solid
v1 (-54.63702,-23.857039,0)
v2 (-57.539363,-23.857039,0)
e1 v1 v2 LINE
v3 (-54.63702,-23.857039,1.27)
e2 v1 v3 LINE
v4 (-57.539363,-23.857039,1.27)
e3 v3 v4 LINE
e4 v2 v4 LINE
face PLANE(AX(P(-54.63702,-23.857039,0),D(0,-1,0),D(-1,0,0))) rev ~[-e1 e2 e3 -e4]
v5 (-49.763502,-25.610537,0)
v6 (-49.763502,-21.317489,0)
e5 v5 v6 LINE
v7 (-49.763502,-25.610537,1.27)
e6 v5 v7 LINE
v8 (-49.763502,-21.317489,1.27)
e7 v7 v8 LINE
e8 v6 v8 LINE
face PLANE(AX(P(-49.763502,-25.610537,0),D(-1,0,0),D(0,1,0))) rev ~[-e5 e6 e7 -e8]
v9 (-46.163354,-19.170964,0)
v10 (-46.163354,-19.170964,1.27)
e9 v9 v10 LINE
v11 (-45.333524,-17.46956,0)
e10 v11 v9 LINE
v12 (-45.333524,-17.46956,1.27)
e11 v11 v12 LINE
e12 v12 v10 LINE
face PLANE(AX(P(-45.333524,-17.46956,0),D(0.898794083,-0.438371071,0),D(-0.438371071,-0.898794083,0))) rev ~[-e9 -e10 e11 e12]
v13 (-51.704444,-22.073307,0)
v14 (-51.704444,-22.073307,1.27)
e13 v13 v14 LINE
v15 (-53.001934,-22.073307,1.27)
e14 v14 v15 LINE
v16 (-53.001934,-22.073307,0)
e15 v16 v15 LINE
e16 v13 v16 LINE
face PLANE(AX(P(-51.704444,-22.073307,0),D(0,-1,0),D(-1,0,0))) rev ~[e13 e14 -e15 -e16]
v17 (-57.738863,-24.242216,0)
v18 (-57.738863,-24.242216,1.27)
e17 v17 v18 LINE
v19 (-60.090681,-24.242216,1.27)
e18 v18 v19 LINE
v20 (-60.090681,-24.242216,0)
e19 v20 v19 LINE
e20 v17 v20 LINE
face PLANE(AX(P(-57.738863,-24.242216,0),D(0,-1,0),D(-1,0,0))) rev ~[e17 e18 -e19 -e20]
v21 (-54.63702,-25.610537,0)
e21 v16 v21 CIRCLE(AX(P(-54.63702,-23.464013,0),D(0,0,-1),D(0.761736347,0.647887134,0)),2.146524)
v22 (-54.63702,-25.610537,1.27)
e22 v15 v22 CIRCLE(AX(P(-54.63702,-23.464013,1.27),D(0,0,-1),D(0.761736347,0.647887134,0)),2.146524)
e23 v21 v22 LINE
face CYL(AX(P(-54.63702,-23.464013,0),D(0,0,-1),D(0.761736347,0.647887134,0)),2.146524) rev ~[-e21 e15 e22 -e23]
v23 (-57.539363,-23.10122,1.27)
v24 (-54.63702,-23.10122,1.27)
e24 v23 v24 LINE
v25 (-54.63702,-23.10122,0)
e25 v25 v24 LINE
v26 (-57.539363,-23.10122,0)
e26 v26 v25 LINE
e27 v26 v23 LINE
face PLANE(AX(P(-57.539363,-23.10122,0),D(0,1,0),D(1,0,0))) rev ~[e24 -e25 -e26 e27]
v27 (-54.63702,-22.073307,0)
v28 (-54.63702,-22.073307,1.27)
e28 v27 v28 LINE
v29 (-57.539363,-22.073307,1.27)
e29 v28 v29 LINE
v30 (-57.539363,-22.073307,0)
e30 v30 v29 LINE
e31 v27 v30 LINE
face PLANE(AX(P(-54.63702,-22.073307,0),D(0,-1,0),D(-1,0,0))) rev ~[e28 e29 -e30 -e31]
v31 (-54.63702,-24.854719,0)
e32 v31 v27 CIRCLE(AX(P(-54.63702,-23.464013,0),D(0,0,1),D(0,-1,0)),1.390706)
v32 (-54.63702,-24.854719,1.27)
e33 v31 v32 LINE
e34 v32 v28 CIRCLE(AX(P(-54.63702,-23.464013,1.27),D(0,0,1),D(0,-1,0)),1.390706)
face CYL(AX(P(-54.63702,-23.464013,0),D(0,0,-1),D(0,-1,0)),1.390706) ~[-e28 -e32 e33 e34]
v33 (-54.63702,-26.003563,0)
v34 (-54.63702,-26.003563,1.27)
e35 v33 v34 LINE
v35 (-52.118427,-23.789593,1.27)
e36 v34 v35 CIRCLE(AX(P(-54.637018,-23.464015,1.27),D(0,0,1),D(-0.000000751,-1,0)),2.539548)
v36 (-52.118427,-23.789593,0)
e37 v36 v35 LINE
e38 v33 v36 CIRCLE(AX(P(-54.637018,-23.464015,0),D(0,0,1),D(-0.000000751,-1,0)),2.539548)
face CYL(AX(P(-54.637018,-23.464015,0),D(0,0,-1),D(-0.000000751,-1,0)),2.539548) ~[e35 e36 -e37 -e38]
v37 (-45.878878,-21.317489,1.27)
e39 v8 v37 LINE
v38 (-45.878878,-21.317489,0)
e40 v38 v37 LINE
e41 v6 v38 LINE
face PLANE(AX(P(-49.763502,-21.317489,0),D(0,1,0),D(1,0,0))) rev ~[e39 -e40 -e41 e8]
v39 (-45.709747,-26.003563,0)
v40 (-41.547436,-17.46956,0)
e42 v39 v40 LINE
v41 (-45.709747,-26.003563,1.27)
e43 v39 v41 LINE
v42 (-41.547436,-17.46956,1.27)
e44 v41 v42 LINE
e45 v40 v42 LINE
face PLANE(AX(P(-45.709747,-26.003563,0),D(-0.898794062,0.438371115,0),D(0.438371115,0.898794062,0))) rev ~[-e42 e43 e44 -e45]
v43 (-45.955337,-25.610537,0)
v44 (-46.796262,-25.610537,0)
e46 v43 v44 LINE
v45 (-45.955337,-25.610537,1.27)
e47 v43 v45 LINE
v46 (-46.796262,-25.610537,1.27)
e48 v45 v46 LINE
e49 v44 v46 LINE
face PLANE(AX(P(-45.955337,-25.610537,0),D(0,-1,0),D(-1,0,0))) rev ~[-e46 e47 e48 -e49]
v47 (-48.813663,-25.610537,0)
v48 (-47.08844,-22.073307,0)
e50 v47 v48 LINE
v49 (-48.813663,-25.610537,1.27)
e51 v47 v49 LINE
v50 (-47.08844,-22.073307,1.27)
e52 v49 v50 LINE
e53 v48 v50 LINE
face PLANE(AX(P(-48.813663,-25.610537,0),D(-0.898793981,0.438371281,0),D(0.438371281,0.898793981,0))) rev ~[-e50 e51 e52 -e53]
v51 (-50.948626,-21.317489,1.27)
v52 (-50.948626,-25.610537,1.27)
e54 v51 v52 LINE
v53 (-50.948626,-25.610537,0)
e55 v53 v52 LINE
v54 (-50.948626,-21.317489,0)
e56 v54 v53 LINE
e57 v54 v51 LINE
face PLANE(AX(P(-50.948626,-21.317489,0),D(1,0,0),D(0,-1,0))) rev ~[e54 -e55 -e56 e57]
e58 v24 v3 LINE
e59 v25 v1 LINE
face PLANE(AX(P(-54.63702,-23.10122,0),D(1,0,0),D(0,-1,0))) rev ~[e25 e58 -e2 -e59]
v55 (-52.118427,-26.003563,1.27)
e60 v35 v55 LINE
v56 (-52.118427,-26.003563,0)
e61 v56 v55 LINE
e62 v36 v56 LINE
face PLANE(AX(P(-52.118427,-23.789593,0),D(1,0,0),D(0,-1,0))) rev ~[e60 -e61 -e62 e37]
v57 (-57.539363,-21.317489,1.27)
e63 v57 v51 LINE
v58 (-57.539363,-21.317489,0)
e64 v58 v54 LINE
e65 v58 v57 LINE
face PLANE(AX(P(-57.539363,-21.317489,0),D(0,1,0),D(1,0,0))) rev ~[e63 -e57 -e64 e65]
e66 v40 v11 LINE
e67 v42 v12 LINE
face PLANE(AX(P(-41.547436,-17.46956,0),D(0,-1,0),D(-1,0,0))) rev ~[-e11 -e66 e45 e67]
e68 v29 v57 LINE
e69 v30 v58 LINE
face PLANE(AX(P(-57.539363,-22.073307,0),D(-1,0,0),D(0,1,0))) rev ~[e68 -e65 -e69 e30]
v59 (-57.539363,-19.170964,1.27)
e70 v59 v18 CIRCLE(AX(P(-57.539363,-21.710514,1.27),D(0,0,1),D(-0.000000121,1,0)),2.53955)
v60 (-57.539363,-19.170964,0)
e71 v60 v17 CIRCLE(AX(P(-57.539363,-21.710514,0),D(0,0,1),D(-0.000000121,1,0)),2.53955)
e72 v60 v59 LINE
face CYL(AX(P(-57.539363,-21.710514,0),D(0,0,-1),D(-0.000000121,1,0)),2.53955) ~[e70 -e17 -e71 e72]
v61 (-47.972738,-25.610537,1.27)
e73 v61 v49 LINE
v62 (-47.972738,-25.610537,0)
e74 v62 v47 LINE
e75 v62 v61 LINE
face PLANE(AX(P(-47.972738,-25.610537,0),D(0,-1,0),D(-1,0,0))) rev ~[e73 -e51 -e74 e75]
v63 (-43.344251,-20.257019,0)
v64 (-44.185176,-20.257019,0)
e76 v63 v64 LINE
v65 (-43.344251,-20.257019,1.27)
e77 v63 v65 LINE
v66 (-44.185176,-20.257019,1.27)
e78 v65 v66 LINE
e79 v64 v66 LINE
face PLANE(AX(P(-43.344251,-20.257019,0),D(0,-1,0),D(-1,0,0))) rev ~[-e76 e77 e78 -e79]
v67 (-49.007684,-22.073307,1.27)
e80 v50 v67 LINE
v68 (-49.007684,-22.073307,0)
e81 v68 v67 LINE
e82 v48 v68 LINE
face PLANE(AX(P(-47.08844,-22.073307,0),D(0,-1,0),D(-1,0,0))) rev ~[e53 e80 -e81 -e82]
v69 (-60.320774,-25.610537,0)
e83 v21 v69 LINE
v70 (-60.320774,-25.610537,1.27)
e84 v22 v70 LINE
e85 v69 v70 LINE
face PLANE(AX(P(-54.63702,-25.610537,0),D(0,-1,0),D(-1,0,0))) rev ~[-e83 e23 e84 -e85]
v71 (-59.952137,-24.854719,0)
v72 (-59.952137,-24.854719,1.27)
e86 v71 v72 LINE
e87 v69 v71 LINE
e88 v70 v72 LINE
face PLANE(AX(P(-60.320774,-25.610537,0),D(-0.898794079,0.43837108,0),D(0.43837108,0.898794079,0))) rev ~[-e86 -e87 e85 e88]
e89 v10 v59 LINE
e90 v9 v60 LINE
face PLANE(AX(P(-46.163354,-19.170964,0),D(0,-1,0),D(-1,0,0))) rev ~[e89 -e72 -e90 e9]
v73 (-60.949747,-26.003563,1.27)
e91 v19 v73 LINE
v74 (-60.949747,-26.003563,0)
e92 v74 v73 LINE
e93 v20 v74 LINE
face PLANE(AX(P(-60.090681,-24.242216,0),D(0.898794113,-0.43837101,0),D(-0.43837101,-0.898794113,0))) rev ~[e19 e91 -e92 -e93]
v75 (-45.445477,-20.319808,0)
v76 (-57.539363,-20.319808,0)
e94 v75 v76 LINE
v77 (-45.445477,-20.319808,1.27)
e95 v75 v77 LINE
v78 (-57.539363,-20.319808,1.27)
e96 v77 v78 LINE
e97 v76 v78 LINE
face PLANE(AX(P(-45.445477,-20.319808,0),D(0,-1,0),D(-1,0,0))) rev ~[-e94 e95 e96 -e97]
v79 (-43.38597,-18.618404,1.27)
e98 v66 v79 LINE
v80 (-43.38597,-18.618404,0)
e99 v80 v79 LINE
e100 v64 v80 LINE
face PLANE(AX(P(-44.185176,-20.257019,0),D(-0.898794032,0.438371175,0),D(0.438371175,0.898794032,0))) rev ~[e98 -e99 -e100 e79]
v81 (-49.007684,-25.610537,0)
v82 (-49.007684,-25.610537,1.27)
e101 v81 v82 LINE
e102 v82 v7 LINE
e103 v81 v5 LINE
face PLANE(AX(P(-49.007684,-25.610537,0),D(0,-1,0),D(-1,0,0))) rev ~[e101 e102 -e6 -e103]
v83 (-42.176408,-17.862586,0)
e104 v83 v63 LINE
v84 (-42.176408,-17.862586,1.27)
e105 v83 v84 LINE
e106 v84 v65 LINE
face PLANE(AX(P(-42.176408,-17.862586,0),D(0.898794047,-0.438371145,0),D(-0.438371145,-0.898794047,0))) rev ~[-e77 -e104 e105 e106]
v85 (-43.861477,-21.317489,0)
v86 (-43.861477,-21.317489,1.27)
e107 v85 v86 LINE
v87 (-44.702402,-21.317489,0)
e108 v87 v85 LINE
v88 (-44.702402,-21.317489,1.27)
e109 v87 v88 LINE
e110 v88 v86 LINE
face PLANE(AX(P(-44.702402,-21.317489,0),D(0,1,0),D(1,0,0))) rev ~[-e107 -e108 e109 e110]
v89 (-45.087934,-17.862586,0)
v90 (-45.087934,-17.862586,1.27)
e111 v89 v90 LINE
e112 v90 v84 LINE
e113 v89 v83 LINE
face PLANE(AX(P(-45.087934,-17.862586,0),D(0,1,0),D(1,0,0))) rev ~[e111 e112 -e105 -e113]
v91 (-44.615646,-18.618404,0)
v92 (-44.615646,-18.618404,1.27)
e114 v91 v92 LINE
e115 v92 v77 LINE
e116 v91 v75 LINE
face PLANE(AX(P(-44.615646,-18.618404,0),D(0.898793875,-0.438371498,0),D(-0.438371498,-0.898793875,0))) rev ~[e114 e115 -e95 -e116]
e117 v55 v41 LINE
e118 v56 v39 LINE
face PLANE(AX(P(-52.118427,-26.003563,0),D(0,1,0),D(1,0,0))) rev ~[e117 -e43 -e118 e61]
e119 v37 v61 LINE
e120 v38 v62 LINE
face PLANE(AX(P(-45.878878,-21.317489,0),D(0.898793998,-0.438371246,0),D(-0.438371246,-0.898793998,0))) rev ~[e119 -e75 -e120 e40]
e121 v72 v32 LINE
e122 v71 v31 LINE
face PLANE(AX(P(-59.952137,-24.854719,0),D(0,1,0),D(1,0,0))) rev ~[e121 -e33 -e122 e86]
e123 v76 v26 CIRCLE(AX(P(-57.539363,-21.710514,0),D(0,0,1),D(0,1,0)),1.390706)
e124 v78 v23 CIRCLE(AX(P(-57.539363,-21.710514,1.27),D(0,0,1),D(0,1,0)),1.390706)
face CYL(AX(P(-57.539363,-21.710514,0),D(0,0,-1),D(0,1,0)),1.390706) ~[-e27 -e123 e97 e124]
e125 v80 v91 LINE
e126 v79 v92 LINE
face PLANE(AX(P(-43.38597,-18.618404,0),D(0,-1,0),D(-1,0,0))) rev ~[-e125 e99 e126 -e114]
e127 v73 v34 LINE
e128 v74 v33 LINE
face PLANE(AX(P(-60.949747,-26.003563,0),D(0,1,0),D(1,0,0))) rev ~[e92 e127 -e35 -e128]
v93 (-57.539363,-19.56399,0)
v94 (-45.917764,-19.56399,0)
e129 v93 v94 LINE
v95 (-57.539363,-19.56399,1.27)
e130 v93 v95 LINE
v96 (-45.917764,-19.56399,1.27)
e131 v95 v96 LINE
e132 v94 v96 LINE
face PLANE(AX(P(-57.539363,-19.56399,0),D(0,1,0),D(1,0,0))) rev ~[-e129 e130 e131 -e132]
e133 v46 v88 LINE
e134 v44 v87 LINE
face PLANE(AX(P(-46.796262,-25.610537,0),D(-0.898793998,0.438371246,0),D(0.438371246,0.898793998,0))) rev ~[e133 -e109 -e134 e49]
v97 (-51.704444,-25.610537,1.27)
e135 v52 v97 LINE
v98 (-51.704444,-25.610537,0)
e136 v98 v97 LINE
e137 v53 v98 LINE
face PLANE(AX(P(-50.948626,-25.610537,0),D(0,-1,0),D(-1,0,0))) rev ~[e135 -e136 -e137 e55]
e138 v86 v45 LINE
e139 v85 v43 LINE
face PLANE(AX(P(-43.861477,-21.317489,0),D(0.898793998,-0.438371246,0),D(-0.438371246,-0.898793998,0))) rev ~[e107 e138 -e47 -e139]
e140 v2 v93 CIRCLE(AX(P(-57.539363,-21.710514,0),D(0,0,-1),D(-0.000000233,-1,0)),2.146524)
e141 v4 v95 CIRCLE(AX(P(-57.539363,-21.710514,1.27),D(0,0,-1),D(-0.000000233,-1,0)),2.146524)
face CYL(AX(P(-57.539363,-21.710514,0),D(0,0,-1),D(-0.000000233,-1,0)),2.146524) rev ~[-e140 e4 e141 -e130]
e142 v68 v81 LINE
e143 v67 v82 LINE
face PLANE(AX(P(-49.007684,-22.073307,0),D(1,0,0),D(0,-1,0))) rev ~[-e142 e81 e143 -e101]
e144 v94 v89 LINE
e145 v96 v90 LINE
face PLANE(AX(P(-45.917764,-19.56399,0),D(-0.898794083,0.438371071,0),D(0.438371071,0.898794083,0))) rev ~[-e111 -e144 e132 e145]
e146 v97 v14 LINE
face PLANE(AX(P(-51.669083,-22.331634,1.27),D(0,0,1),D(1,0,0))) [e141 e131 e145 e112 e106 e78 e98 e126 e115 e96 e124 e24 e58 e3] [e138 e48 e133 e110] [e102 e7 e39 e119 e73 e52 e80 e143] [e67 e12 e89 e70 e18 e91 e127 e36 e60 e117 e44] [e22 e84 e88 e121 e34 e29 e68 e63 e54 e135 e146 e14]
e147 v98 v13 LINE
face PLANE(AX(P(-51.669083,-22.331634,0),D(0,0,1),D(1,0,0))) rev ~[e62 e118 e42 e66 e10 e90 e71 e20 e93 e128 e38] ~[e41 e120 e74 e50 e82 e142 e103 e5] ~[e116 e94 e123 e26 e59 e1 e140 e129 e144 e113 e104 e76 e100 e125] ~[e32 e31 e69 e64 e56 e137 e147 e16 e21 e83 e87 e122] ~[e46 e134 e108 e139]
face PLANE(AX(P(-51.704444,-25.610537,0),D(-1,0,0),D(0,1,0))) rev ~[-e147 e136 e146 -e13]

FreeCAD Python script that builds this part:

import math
import FreeCAD as App
import Part
import Sketcher
Q = App.Units.Quantity


def add_polygon(sketch, points):
    """Adds a closed chain of lines whose ends are joined by coincident constraints."""
    first, n = sketch.GeometryCount, len(points)
    for a, b in zip(points, points[1:] + points[:1]):
        sketch.addGeometry(Part.LineSegment(App.Vector(*a, 0), App.Vector(*b, 0)), False)
    for i in range(n):
        sketch.addConstraint(Sketcher.Constraint("Coincident", first + i, 2, first + (i + 1) % n, 1))

doc = App.newDocument("Part")
body = doc.addObject("PartDesign::Body", "Body")

# Sketch on XY plane
sketch1 = body.newObject("Sketcher::SketchObject", "Sketch")
sketch1.AttachmentSupport = (doc.getObject("XY_Plane"), [""])
sketch1.MapMode = "FlatFace"
sketch1.addGeometry(Part.LineSegment(App.Vector(-60.1, -24.2, 0), App.Vector(-60.9, -26, 0)), False)  # 0
sketch1.addGeometry(Part.LineSegment(App.Vector(-60.9, -26, 0), App.Vector(-54.6, -26, 0)), False)  # 1
sketch1.addGeometry(Part.ArcOfCircle(Part.Circle(App.Vector(-54.6, -23.5, 0), App.Vector(0, 0, 1), 2.5), math.radians(-90), math.radians(-7)), False)  # 2
sketch1.addGeometry(Part.LineSegment(App.Vector(-52.1, -23.8, 0), App.Vector(-52.1, -26, 0)), False)  # 3
sketch1.addGeometry(Part.LineSegment(App.Vector(-52.1, -26, 0), App.Vector(-45.7, -26, 0)), False)  # 4
sketch1.addGeometry(Part.LineSegment(App.Vector(-45.7, -26, 0), App.Vector(-41.5, -17.5, 0)), False)  # 5
sketch1.addGeometry(Part.LineSegment(App.Vector(-41.5, -17.5, 0), App.Vector(-45.3, -17.5, 0)), False)  # 6
sketch1.addGeometry(Part.LineSegment(App.Vector(-45.3, -17.5, 0), App.Vector(-46.2, -19.2, 0)), False)  # 7
sketch1.addGeometry(Part.LineSegment(App.Vector(-46.2, -19.2, 0), App.Vector(-57.5, -19.2, 0)), False)  # 8
sketch1.addGeometry(Part.ArcOfCircle(Part.Circle(App.Vector(-57.5, -21.7, 0), App.Vector(0, 0, 1), 2.5), math.radians(90), math.radians(265)), False)  # 9
sketch1.addGeometry(Part.LineSegment(App.Vector(-57.7, -24.2, 0), App.Vector(-60.1, -24.2, 0)), False)  # 10
sketch1.addGeometry(Part.ArcOfCircle(Part.Circle(App.Vector(-54.6, -23.5, 0), App.Vector(0, 0, 1), 2.1), math.radians(-90), math.radians(40)), False)  # 11
sketch1.addGeometry(Part.LineSegment(App.Vector(-54.6, -25.6, 0), App.Vector(-60.3, -25.6, 0)), False)  # 12
sketch1.addGeometry(Part.LineSegment(App.Vector(-60.3, -25.6, 0), App.Vector(-60, -24.9, 0)), False)  # 13
sketch1.addGeometry(Part.LineSegment(App.Vector(-60, -24.9, 0), App.Vector(-54.6, -24.9, 0)), False)  # 14
sketch1.addGeometry(Part.ArcOfCircle(Part.Circle(App.Vector(-54.6, -23.5, 0), App.Vector(0, 0, 1), 1.4), math.radians(-90), math.radians(90)), False)  # 15
sketch1.addGeometry(Part.LineSegment(App.Vector(-54.6, -22.1, 0), App.Vector(-57.5, -22.1, 0)), False)  # 16
sketch1.addGeometry(Part.LineSegment(App.Vector(-57.5, -22.1, 0), App.Vector(-57.5, -21.3, 0)), False)  # 17
sketch1.addGeometry(Part.LineSegment(App.Vector(-57.5, -21.3, 0), App.Vector(-50.9, -21.3, 0)), False)  # 18
sketch1.addGeometry(Part.LineSegment(App.Vector(-50.9, -21.3, 0), App.Vector(-50.9, -25.6, 0)), False)  # 19
sketch1.addGeometry(Part.LineSegment(App.Vector(-50.9, -25.6, 0), App.Vector(-51.7, -25.6, 0)), False)  # 20
sketch1.addGeometry(Part.LineSegment(App.Vector(-51.7, -25.6, 0), App.Vector(-51.7, -22.1, 0)), False)  # 21
sketch1.addGeometry(Part.LineSegment(App.Vector(-51.7, -22.1, 0), App.Vector(-53, -22.1, 0)), False)  # 22
add_polygon(sketch1, [(-49, -22.1), (-49, -25.6), (-49.8, -25.6), (-49.8, -21.3), (-45.9, -21.3), (-48, -25.6), (-48.8, -25.6), (-47.1, -22.1)])  # lines 23-30
add_polygon(sketch1, [(-43.9, -21.3), (-46, -25.6), (-46.8, -25.6), (-44.7, -21.3)])  # lines 31-34
sketch1.addGeometry(Part.LineSegment(App.Vector(-57.5, -23.1, 0), App.Vector(-54.6, -23.1, 0)), False)  # 35
sketch1.addGeometry(Part.LineSegment(App.Vector(-54.6, -23.1, 0), App.Vector(-54.6, -23.9, 0)), False)  # 36
sketch1.addGeometry(Part.LineSegment(App.Vector(-54.6, -23.9, 0), App.Vector(-57.5, -23.9, 0)), False)  # 37
sketch1.addGeometry(Part.ArcOfCircle(Part.Circle(App.Vector(-57.5, -21.7, 0), App.Vector(0, 0, 1), 2.1), math.radians(90), math.radians(270)), False)  # 38
sketch1.addGeometry(Part.LineSegment(App.Vector(-57.5, -19.6, 0), App.Vector(-45.9, -19.6, 0)), False)  # 39
sketch1.addGeometry(Part.LineSegment(App.Vector(-45.9, -19.6, 0), App.Vector(-45.1, -17.9, 0)), False)  # 40
sketch1.addGeometry(Part.LineSegment(App.Vector(-45.1, -17.9, 0), App.Vector(-42.2, -17.9, 0)), False)  # 41
sketch1.addGeometry(Part.LineSegment(App.Vector(-42.2, -17.9, 0), App.Vector(-43.3, -20.3, 0)), False)  # 42
sketch1.addGeometry(Part.LineSegment(App.Vector(-43.3, -20.3, 0), App.Vector(-44.2, -20.3, 0)), False)  # 43
sketch1.addGeometry(Part.LineSegment(App.Vector(-44.2, -20.3, 0), App.Vector(-43.4, -18.6, 0)), False)  # 44
sketch1.addGeometry(Part.LineSegment(App.Vector(-43.4, -18.6, 0), App.Vector(-44.6, -18.6, 0)), False)  # 45
sketch1.addGeometry(Part.LineSegment(App.Vector(-44.6, -18.6, 0), App.Vector(-45.4, -20.3, 0)), False)  # 46
sketch1.addGeometry(Part.LineSegment(App.Vector(-45.4, -20.3, 0), App.Vector(-57.5, -20.3, 0)), False)  # 47
sketch1.addGeometry(Part.ArcOfCircle(Part.Circle(App.Vector(-57.5, -21.7, 0), App.Vector(0, 0, 1), 1.4), math.radians(90), math.radians(270)), False)  # 48
sketch1.addConstraint([
    Sketcher.Constraint("Coincident", 0, 2, 1, 1),
    Sketcher.Constraint("Tangent", 1, 2, 2, 1),
    Sketcher.Constraint("Coincident", 2, 2, 3, 1),
    Sketcher.Constraint("Coincident", 3, 2, 4, 1),
    Sketcher.Constraint("Coincident", 4, 2, 5, 1),
    Sketcher.Constraint("Coincident", 5, 2, 6, 1),
    Sketcher.Constraint("Coincident", 6, 2, 7, 1),
    Sketcher.Constraint("Coincident", 7, 2, 8, 1),
    Sketcher.Constraint("Tangent", 8, 2, 9, 1),
    Sketcher.Constraint("Coincident", 9, 2, 10, 1),
    Sketcher.Constraint("Coincident", 10, 2, 0, 1),
    Sketcher.Constraint("Tangent", 11, 1, 12, 1),
    Sketcher.Constraint("Coincident", 12, 2, 13, 1),
    Sketcher.Constraint("Coincident", 13, 2, 14, 1),
    Sketcher.Constraint("Tangent", 14, 2, 15, 1),
    Sketcher.Constraint("Tangent", 15, 2, 16, 1),
    Sketcher.Constraint("Coincident", 16, 2, 17, 1),
    Sketcher.Constraint("Coincident", 17, 2, 18, 1),
    Sketcher.Constraint("Coincident", 18, 2, 19, 1),
    Sketcher.Constraint("Coincident", 19, 2, 20, 1),
    Sketcher.Constraint("Coincident", 20, 2, 21, 1),
    Sketcher.Constraint("Coincident", 21, 2, 22, 1),
    Sketcher.Constraint("Coincident", 22, 2, 11, 2),
    Sketcher.Constraint("Coincident", 35, 2, 36, 1),
    Sketcher.Constraint("Coincident", 36, 2, 37, 1),
    Sketcher.Constraint("Tangent", 37, 2, 38, 2),
    Sketcher.Constraint("Tangent", 38, 1, 39, 1),
    Sketcher.Constraint("Coincident", 39, 2, 40, 1),
    Sketcher.Constraint("Coincident", 40, 2, 41, 1),
    Sketcher.Constraint("Coincident", 41, 2, 42, 1),
    Sketcher.Constraint("Coincident", 42, 2, 43, 1),
    Sketcher.Constraint("Coincident", 43, 2, 44, 1),
    Sketcher.Constraint("Coincident", 44, 2, 45, 1),
    Sketcher.Constraint("Coincident", 45, 2, 46, 1),
    Sketcher.Constraint("Coincident", 46, 2, 47, 1),
    Sketcher.Constraint("Tangent", 47, 2, 48, 1),
    Sketcher.Constraint("Tangent", 48, 2, 35, 1),
    Sketcher.Constraint("Horizontal", 1),
    Sketcher.Constraint("Vertical", 3),
    Sketcher.Constraint("Horizontal", 4),
    Sketcher.Constraint("Horizontal", 6),
    Sketcher.Constraint("Horizontal", 8),
    Sketcher.Constraint("Horizontal", 10),
    Sketcher.Constraint("Horizontal", 12),
    Sketcher.Constraint("Horizontal", 14),
    Sketcher.Constraint("Horizontal", 16),
    Sketcher.Constraint("Vertical", 17),
    Sketcher.Constraint("Horizontal", 18),
    Sketcher.Constraint("Vertical", 19),
    Sketcher.Constraint("Horizontal", 20),
    Sketcher.Constraint("Vertical", 21),
    Sketcher.Constraint("Horizontal", 22),
    Sketcher.Constraint("Vertical", 23),
    Sketcher.Constraint("Horizontal", 24),
    Sketcher.Constraint("Vertical", 25),
    Sketcher.Constraint("Horizontal", 26),
    Sketcher.Constraint("Horizontal", 28),
    Sketcher.Constraint("Horizontal", 30),
    Sketcher.Constraint("Horizontal", 32),
    Sketcher.Constraint("Horizontal", 34),
    Sketcher.Constraint("Horizontal", 35),
    Sketcher.Constraint("Vertical", 36),
    Sketcher.Constraint("Horizontal", 37),
    Sketcher.Constraint("Horizontal", 39),
    Sketcher.Constraint("Horizontal", 41),
    Sketcher.Constraint("Horizontal", 43),
    Sketcher.Constraint("Horizontal", 45),
    Sketcher.Constraint("Horizontal", 47),
    Sketcher.Constraint("Coincident", 11, 3, 2, 3),
    Sketcher.Constraint("Coincident", 15, 3, 2, 3),
    Sketcher.Constraint("Coincident", 38, 3, 9, 3),
    Sketcher.Constraint("Coincident", 48, 3, 9, 3),
    Sketcher.Constraint("Equal", 11, 38),
    Sketcher.Constraint("Equal", 15, 48),
    Sketcher.Constraint("Parallel", 0, 5),
    Sketcher.Constraint("Parallel", 5, 7),
    Sketcher.Constraint("Parallel", 7, 13),
    Sketcher.Constraint("Parallel", 13, 27),
    Sketcher.Constraint("Parallel", 27, 29),
    Sketcher.Constraint("Parallel", 29, 31),
    Sketcher.Constraint("Parallel", 31, 33),
    Sketcher.Constraint("Parallel", 33, 40),
    Sketcher.Constraint("Parallel", 40, 42),
    Sketcher.Constraint("Parallel", 42, 44),
    Sketcher.Constraint("Parallel", 44, 46),
    Sketcher.Constraint("Horizontal", 1, 2, 3, 2),
    Sketcher.Constraint("Horizontal", 12, 2, 19, 2),
    Sketcher.Constraint("Horizontal", 16, 2, 21, 2),
    Sketcher.Constraint("Horizontal", 20, 2, 23, 2),
    Sketcher.Constraint("Horizontal", 18, 2, 25, 2),
    Sketcher.Constraint("Horizontal", 24, 2, 27, 2),
    Sketcher.Constraint("Horizontal", 22, 2, 29, 2),
    Sketcher.Constraint("Horizontal", 28, 2, 31, 2),
    Sketcher.Constraint("Horizontal", 26, 2, 33, 2),
    Sketcher.Constraint("Vertical", 8, 2, 16, 2),
    Sketcher.Constraint("Vertical", 15, 2, 35, 2),
    Sketcher.Constraint("Equal", 20, 24),
    Sketcher.Constraint("Equal", 28, 32),
    Sketcher.Constraint("Equal", 34, 43),
    Sketcher.Constraint("Equal", 24, 17),
    Sketcher.Constraint("Equal", 17, 36),
    Sketcher.Constraint("Equal", 7, 40),
    Sketcher.Constraint("Equal", 40, 46),
    Sketcher.Constraint("Angle", 0, Q("-115.999991 deg")),
    Sketcher.Constraint("Radius", 9, 2.53955),
    Sketcher.Constraint("DistanceY", 4, 2, 7, 2, Q("0.269 in")),
    Sketcher.Constraint("DistanceX", 39, 1, 39, 2, 11.621599),
    Sketcher.Constraint("Radius", 2, 2.539548),
    Sketcher.Constraint("Radius", 11, 2.146524),
    Sketcher.Constraint("Radius", 15, 1.390706),
    Sketcher.Constraint("DistanceX", 7, 2, 26, 2, Q("0.0111998 in")),
    Sketcher.Constraint("DistanceX", 4, 1, 4, 2, 6.40868),
    Sketcher.Constraint("DistanceX", 8, 2, 8, 1, 11.376009),
    Sketcher.Constraint("DistanceX", 22, 2, 22, 1, 1.29749),
    Sketcher.Constraint("DistanceY", 3, 2, 3, 1, 2.21397),
    Sketcher.Constraint("DistanceX", 9, 2, 38, 3, 0.1995),
    Sketcher.Constraint("DistanceX", 27, 2, 29, 2, 0.884298),
    Sketcher.Constraint("DistanceX", 27, 2, 31, 2, 2.017401),
    Sketcher.Constraint("DistanceX", 43, 2, 34, 2, 0.323699),
    Sketcher.Constraint("DistanceX", 26, 2, 46, 2, 0.433401),
    Sketcher.Constraint("Distance", 5, 9.494948),
    Sketcher.Constraint("Distance", 42, 2.664051),
    Sketcher.Constraint("DistanceX", 1, 1, 1, 2, 6.312727),
    Sketcher.Constraint("DistanceX", 6, 2, 6, 1, 3.786088),
    Sketcher.Constraint("DistanceX", 12, 2, 12, 1, 5.683754),
    Sketcher.Constraint("DistanceX", 26, 1, 26, 2, 3.884624),
    Sketcher.Constraint("DistanceX", 2, 3, -1, 1, 54.637018),
    Sketcher.Constraint("DistanceY", 5, 2, -1, 1, 17.46956),
])
pad1 = body.newObject("PartDesign::Pad", "Pad")
pad1.Profile = sketch1
pad1.Length = Q("0.05 in")

doc.recompute()
